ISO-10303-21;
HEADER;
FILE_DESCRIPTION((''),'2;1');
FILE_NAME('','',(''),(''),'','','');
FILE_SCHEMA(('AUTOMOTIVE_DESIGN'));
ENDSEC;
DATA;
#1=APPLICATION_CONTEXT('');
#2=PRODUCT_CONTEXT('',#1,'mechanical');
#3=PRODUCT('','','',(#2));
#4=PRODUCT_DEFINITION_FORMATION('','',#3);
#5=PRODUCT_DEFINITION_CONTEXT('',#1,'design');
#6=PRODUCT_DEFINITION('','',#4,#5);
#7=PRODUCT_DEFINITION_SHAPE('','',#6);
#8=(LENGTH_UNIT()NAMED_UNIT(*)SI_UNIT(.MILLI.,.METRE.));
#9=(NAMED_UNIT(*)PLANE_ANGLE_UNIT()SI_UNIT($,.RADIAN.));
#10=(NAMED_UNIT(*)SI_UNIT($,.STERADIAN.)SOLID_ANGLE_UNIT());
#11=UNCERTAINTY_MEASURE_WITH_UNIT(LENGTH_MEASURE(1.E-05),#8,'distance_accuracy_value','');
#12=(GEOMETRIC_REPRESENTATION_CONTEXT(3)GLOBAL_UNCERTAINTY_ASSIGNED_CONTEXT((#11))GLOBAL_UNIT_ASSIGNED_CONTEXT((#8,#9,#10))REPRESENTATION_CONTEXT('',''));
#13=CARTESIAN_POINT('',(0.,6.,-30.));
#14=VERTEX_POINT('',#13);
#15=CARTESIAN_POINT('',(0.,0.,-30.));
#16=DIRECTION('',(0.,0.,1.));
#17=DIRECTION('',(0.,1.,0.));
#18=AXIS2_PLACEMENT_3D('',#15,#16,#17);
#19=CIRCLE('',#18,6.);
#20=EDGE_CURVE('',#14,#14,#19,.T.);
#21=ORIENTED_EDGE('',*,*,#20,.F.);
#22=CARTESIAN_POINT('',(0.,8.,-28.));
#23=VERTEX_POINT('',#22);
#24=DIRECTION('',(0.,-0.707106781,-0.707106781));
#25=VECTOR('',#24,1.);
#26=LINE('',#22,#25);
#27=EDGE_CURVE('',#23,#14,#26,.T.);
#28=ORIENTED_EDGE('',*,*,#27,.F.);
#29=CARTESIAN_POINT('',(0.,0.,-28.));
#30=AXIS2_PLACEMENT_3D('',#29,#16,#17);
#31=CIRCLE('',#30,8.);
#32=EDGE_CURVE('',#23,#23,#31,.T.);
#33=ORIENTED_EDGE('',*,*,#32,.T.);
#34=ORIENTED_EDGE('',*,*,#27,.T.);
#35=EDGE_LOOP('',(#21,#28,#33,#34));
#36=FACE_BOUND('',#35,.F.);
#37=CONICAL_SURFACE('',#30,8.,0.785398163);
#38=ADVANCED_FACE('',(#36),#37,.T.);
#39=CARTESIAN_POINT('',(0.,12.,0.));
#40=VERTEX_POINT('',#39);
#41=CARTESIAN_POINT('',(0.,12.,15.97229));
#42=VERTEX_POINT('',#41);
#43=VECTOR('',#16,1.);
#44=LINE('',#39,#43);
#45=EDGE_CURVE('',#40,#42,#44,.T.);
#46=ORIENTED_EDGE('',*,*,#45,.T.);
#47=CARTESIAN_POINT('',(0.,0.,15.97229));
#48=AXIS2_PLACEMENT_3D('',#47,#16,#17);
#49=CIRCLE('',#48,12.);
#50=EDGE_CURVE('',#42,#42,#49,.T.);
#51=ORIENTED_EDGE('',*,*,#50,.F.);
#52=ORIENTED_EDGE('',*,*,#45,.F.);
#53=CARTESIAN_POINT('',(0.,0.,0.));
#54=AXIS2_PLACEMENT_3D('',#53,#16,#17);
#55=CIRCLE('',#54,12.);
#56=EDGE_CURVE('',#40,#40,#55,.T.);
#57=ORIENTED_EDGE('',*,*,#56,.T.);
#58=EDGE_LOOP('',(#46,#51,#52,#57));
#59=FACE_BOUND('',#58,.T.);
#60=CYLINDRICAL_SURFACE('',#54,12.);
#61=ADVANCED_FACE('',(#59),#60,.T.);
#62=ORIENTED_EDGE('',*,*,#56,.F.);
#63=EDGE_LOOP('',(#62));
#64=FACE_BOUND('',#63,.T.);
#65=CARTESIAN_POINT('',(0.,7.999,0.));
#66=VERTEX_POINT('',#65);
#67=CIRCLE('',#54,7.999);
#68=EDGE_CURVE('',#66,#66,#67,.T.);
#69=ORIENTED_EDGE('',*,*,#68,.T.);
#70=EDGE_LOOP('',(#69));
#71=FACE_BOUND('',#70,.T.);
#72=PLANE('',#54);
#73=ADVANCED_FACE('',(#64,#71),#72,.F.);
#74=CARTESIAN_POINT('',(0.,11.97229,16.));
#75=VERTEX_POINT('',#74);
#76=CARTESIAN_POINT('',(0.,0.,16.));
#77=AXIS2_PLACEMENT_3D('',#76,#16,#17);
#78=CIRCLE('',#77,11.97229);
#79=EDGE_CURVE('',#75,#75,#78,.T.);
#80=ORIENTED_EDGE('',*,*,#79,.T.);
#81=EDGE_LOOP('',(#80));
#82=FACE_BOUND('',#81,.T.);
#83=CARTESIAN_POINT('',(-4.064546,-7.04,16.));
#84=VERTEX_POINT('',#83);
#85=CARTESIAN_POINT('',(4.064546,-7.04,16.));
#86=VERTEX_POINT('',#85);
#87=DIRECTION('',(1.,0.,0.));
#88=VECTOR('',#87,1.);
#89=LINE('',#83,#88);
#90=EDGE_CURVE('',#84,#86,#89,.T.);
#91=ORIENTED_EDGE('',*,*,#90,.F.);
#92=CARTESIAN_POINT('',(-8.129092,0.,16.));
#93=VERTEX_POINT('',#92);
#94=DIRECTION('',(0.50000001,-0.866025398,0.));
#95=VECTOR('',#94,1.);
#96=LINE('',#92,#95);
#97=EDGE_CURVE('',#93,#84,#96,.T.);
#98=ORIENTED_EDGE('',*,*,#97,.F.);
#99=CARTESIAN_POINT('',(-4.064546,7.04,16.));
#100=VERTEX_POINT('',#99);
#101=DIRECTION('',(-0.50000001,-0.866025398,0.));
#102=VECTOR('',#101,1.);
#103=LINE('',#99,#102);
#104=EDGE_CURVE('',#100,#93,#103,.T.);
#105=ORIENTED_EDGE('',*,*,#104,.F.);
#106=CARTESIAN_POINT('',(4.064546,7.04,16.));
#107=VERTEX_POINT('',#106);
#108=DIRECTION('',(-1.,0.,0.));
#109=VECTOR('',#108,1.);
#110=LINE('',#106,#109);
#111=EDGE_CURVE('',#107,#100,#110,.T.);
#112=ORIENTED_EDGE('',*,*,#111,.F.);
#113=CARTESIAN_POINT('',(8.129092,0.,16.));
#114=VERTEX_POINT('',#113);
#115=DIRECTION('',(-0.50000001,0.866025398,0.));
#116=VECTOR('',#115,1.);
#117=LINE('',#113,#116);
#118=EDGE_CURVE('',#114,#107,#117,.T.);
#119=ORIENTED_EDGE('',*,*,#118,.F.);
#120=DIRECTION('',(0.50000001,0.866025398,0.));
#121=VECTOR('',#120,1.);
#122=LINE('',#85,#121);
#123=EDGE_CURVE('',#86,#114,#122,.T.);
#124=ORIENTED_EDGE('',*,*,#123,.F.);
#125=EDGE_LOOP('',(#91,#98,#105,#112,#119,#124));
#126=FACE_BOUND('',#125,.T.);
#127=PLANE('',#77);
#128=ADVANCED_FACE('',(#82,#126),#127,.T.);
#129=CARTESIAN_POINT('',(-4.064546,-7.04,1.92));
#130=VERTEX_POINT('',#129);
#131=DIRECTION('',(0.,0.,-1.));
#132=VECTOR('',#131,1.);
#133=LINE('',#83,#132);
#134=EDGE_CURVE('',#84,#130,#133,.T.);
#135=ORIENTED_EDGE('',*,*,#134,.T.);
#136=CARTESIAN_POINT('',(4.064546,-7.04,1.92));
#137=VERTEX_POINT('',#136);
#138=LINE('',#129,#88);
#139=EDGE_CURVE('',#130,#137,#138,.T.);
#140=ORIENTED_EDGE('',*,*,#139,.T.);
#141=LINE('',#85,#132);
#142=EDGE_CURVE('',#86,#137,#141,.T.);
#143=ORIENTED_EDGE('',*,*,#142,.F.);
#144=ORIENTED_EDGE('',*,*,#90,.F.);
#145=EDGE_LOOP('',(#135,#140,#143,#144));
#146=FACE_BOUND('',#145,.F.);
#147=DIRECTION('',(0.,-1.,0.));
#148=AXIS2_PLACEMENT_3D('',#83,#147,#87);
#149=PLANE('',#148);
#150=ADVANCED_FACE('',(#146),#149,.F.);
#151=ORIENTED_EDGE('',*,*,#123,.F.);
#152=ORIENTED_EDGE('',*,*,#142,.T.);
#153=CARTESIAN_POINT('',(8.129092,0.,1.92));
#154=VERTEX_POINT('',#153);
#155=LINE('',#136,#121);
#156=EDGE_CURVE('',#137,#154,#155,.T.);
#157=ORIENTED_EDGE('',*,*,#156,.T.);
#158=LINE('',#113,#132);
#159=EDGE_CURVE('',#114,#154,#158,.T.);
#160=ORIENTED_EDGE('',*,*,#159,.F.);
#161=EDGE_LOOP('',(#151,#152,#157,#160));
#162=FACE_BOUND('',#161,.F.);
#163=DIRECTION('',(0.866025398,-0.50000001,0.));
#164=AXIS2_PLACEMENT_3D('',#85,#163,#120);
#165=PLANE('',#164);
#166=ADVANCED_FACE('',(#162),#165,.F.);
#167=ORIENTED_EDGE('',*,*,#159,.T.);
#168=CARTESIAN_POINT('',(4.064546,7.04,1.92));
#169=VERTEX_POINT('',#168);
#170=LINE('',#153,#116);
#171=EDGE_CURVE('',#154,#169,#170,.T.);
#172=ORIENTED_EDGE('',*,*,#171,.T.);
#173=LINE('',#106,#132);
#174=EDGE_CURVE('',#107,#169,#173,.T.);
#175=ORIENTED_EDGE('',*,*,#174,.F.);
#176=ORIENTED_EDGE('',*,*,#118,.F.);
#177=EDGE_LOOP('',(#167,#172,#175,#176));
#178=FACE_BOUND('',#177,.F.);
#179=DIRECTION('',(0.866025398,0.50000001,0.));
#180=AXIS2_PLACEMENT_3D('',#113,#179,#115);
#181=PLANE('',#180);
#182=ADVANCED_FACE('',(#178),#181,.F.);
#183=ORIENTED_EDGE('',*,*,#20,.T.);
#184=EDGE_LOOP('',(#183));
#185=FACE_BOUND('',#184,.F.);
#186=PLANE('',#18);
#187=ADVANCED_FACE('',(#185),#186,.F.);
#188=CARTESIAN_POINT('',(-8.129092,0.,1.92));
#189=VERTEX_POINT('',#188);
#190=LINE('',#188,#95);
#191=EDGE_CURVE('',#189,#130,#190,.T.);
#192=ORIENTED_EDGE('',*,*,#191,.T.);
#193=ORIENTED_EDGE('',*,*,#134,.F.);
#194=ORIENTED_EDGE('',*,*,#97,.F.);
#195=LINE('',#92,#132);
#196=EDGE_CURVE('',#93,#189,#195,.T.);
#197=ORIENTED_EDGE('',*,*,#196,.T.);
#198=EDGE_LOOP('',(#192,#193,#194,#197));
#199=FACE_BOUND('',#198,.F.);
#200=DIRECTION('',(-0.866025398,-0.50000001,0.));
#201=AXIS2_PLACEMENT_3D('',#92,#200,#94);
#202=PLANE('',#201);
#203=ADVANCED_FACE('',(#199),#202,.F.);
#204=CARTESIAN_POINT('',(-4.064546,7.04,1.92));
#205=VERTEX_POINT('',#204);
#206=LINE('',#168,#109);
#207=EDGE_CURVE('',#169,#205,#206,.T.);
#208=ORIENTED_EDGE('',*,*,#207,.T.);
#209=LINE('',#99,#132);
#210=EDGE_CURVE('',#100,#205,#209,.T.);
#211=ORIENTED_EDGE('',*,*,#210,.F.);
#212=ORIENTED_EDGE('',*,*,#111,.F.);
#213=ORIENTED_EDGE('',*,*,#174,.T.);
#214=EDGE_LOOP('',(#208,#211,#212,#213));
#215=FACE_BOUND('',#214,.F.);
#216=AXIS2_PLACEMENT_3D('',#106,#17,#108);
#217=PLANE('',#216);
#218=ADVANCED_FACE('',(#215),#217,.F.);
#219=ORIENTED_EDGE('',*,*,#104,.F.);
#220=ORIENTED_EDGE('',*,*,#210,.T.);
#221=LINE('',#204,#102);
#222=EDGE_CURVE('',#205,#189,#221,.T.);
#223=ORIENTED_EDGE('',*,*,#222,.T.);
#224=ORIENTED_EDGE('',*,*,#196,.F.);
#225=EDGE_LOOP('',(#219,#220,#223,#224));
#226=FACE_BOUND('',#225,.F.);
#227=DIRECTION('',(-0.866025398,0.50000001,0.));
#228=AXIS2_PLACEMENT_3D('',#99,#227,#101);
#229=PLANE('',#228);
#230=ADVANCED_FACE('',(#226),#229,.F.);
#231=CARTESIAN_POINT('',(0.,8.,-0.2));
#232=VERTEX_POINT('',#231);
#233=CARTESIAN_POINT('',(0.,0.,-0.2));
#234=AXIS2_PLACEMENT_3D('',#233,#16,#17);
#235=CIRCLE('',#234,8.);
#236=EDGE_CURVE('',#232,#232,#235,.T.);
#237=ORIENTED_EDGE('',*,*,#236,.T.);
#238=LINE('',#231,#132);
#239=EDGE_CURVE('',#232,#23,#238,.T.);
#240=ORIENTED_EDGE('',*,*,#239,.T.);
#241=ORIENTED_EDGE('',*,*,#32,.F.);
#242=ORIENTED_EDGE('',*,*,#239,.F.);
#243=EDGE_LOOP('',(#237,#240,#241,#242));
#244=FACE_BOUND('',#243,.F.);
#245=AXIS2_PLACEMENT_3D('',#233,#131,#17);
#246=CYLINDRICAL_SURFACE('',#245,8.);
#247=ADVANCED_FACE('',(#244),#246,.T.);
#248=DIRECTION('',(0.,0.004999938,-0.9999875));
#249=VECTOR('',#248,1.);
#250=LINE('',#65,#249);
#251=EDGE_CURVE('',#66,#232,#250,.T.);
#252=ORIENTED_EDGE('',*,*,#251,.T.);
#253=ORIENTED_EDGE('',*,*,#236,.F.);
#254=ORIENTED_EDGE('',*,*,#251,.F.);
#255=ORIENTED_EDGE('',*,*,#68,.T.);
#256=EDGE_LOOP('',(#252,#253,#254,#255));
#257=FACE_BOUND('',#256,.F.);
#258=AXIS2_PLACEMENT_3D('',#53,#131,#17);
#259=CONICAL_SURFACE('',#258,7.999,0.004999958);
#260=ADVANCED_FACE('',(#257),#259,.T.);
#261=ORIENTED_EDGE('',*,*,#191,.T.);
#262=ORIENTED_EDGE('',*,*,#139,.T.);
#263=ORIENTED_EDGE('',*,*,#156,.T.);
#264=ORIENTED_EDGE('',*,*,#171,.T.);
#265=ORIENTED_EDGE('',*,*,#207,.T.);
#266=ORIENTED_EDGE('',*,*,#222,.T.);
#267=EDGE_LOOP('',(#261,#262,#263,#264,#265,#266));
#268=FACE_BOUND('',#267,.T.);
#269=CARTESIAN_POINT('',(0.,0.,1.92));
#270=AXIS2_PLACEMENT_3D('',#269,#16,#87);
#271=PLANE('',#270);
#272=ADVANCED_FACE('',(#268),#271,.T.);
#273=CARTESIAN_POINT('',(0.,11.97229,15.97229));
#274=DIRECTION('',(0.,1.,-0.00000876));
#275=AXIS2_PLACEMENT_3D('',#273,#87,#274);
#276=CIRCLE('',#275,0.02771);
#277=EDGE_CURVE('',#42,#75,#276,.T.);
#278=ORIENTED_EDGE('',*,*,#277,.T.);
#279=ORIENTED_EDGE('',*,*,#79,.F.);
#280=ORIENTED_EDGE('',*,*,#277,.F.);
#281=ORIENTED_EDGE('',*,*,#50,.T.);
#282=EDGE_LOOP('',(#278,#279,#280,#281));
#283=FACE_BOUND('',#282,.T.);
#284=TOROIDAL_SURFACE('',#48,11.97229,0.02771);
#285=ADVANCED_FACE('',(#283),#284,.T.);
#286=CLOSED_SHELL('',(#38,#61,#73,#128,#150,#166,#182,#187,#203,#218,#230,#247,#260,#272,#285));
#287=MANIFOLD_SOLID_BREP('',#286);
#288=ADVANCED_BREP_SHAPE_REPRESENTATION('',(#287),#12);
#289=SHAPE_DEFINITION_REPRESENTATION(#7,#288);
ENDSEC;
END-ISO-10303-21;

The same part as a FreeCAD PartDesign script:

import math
import FreeCAD as App
import Part
import Sketcher

V = App.Vector
Q = App.Units.Quantity

doc = App.newDocument("Part")
body = doc.addObject("PartDesign::Body", "Body")

sketch1 = body.newObject("Sketcher::SketchObject", "Sketch")
sketch1.AttachmentSupport = (doc.getObject("YZ_Plane"), [""])
sketch1.MapMode = "FlatFace"
sketch1.addGeometry(Part.LineSegment(V(7.999, 0, 0), V(12, 0, 0)), False)
sketch1.addGeometry(Part.LineSegment(V(12, 0, 0), V(12, 15.972, 0)), False)
sketch1.addGeometry(Part.ArcOfCircle(Part.Circle(V(11.972, 15.972, 0), V(0, 0, 1), 0.028), math.radians(0), math.radians(90)), False)
sketch1.addGeometry(Part.LineSegment(V(11.972, 16, 0), V(0, 16, 0)), False)
sketch1.addGeometry(Part.LineSegment(V(0, 16, 0), V(0, -30, 0)), False)
sketch1.addGeometry(Part.LineSegment(V(0, -30, 0), V(6, -30, 0)), False)
sketch1.addGeometry(Part.LineSegment(V(6, -30, 0), V(8, -28, 0)), False)
sketch1.addGeometry(Part.LineSegment(V(8, -28, 0), V(8, -0.2, 0)), False)
sketch1.addGeometry(Part.LineSegment(V(8, -0.2, 0), V(7.999, 0, 0)), False)
sketch1.addConstraint(Sketcher.Constraint("Coincident", 0, 2, 1, 1))
sketch1.addConstraint(Sketcher.Constraint("Coincident", 1, 2, 2, 1))
sketch1.addConstraint(Sketcher.Constraint("Coincident", 2, 2, 3, 1))
sketch1.addConstraint(Sketcher.Constraint("Coincident", 3, 2, 4, 1))
sketch1.addConstraint(Sketcher.Constraint("Coincident", 4, 2, 5, 1))
sketch1.addConstraint(Sketcher.Constraint("Coincident", 5, 2, 6, 1))
sketch1.addConstraint(Sketcher.Constraint("Coincident", 6, 2, 7, 1))
sketch1.addConstraint(Sketcher.Constraint("Coincident", 7, 2, 8, 1))
sketch1.addConstraint(Sketcher.Constraint("Coincident", 8, 2, 0, 1))
sketch1.addConstraint(Sketcher.Constraint("Horizontal", 0))
sketch1.addConstraint(Sketcher.Constraint("Vertical", 1))
sketch1.addConstraint(Sketcher.Constraint("Horizontal", 3))
sketch1.addConstraint(Sketcher.Constraint("Vertical", 4))
sketch1.addConstraint(Sketcher.Constraint("Horizontal", 5))
sketch1.addConstraint(Sketcher.Constraint("Vertical", 7))
sketch1.addConstraint(Sketcher.Constraint("PointOnObject", 0, 2, -1))
sketch1.addConstraint(Sketcher.Constraint("PointOnObject", 3, 2, -2))
sketch1.addConstraint(Sketcher.Constraint("Horizontal", 2, 3, 1, 2))
sketch1.addConstraint(Sketcher.Constraint("DistanceX", 5, 1, 5, 2, 6.0))
sketch1.addConstraint(Sketcher.Constraint("DistanceY", 4, 2, 4, 1, 46.0))
sketch1.addConstraint(Sketcher.Constraint("Angle", 6, Q("45 deg")))
sketch1.addConstraint(Sketcher.Constraint("DistanceY", 7, 1, 7, 2, 27.8))
sketch1.addConstraint(Sketcher.Constraint("DistanceX", -1, 1, 0, 2, 12.0))
sketch1.addConstraint(Sketcher.Constraint("DistanceY", -1, 1, 2, 2, 16.0))
sketch1.addConstraint(Sketcher.Constraint("DistanceX", -1, 1, 6, 2, 8.0))
sketch1.addConstraint(Sketcher.Constraint("DistanceX", 0, 1, 0, 2, 4.001))
sketch1.addConstraint(Sketcher.Constraint("Radius", 2, 0.02771))
sketch1.addConstraint(Sketcher.Constraint("DistanceX", 3, 2, 3, 1, 11.97229))
revolution = body.newObject("PartDesign::Revolution", "Revolution")
revolution.Profile = sketch1
revolution.ReferenceAxis = (sketch1, ["V_Axis"])
revolution.Angle = 360

sketch2 = body.newObject("Sketcher::SketchObject", "Sketch001")
sketch2.AttachmentSupport = (doc.getObject("XY_Plane"), [""])
sketch2.MapMode = "FlatFace"
sketch2.AttachmentOffset = App.Placement(V(0, 0, 16), App.Rotation())
sketch2.addGeometry(Part.LineSegment(V(8, 0, 0), V(4, 7, 0)), False)
sketch2.addGeometry(Part.LineSegment(V(4, 7, 0), V(-4, 7, 0)), False)
sketch2.addGeometry(Part.LineSegment(V(-4, 7, 0), V(-8, 0, 0)), False)
sketch2.addGeometry(Part.LineSegment(V(-8, 0, 0), V(-4, -7, 0)), False)
sketch2.addGeometry(Part.LineSegment(V(-4, -7, 0), V(4, -7, 0)), False)
sketch2.addGeometry(Part.LineSegment(V(4, -7, 0), V(8, 0, 0)), False)
sketch2.addConstraint(Sketcher.Constraint("Coincident", 0, 2, 1, 1))
sketch2.addConstraint(Sketcher.Constraint("Coincident", 1, 2, 2, 1))
sketch2.addConstraint(Sketcher.Constraint("Coincident", 2, 2, 3, 1))
sketch2.addConstraint(Sketcher.Constraint("Coincident", 3, 2, 4, 1))
sketch2.addConstraint(Sketcher.Constraint("Coincident", 4, 2, 5, 1))
sketch2.addConstraint(Sketcher.Constraint("Coincident", 5, 2, 0, 1))
sketch2.addConstraint(Sketcher.Constraint("Horizontal", 1))
sketch2.addConstraint(Sketcher.Constraint("Horizontal", 4))
sketch2.addConstraint(Sketcher.Constraint("Symmetric", 0, 2, 3, 2, -1, 1))
sketch2.addConstraint(Sketcher.Constraint("Symmetric", 2, 2, 5, 2, -1, 1))
sketch2.addConstraint(Sketcher.Constraint("PointOnObject", 2, 2, -1))
sketch2.addConstraint(Sketcher.Constraint("Parallel", 2, 5))
sketch2.addConstraint(Sketcher.Constraint("Vertical", 1, 2, 3, 2))
sketch2.addConstraint(Sketcher.Constraint("Angle", 0, Q("120.000001 deg")))
sketch2.addConstraint(Sketcher.Constraint("DistanceY", -1, 1, 0, 2, 7.04))
sketch2.addConstraint(Sketcher.Constraint("DistanceX", 1, 2, 1, 1, 8.129092))
pocket1 = body.newObject("PartDesign::Pocket", "Pocket")
pocket1.Profile = sketch2
pocket1.Length = 14.08

doc.recompute()
